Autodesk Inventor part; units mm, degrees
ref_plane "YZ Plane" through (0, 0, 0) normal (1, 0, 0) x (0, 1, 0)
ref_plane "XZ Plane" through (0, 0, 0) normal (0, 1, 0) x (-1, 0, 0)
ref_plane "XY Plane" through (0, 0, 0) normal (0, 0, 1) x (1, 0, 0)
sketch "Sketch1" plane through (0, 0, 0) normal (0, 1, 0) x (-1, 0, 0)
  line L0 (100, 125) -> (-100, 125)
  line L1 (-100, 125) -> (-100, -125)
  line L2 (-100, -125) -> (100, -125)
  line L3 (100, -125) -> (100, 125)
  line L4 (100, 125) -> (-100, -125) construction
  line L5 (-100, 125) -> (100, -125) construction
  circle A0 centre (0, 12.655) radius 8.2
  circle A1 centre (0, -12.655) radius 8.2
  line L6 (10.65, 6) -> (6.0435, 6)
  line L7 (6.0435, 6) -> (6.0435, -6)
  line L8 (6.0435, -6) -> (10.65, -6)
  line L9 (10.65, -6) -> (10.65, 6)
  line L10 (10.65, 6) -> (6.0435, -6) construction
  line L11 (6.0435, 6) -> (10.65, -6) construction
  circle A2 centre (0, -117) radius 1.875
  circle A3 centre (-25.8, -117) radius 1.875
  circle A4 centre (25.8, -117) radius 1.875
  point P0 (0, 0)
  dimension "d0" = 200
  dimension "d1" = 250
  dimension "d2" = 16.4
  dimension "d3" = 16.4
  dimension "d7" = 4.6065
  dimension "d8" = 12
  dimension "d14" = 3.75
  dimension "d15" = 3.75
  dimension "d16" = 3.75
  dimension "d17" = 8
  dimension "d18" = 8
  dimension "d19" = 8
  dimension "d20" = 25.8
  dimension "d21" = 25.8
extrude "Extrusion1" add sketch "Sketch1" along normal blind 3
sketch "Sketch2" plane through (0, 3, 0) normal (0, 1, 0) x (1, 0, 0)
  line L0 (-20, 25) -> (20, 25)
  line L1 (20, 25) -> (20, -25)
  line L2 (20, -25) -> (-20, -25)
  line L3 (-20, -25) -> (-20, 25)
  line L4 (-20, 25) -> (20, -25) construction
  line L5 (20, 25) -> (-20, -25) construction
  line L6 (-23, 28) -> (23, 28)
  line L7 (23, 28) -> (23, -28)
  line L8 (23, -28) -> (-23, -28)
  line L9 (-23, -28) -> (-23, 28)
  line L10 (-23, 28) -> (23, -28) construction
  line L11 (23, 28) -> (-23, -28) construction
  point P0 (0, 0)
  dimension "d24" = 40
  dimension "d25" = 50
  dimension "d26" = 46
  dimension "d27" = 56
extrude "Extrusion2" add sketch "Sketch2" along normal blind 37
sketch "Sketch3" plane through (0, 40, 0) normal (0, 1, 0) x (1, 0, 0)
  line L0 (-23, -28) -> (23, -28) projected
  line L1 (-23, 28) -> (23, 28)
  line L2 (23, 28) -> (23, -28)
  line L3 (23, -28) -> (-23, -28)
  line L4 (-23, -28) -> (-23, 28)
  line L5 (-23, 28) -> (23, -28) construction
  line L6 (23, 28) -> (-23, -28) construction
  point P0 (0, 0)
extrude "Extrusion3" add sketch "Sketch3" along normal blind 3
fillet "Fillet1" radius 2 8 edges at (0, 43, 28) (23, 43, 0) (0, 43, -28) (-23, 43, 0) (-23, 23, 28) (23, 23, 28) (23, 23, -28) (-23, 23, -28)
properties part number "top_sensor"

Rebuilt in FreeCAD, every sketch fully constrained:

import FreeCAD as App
import Part
import Sketcher
from FreeCAD import Vector


def edges_at(feature, points):
    """Names of the edges that pass closest to the given points."""
    edges = feature.Shape.Edges
    near = lambda p: min(range(len(edges)), key=lambda i: edges[i].distToShape(Part.Vertex(*p))[0])
    return sorted({f"Edge{near(p) + 1}" for p in points})


def add_polygon(sketch, points):
    """Adds a closed chain of lines whose ends are joined by coincident constraints."""
    first, n = sketch.GeometryCount, len(points)
    for a, b in zip(points, points[1:] + points[:1]):
        sketch.addGeometry(Part.LineSegment(App.Vector(*a, 0), App.Vector(*b, 0)), False)
    for i in range(n):
        sketch.addConstraint(Sketcher.Constraint("Coincident", first + i, 2, first + (i + 1) % n, 1))

doc = App.newDocument("Part")
params = doc.addObject("Spreadsheet::Sheet", "Params")
for row, (alias, value) in enumerate([
    ("sketch1_diameter", "16.4 mm"),
    ("sketch1_diameter2", "3.75 mm"),
    ("sketch1_width", "200 mm"),
    ("sketch1_height", "250 mm"),
    ("sketch1_height2", "12 mm"),
    ("pad1_length", "3 mm"),
    ("sketch2_width", "46 mm"),
    ("sketch2_width2", "40 mm"),
    ("sketch2_height", "56 mm"),
    ("sketch2_height2", "50 mm"),
    ("pad2_length", "37 mm"),
    ("sketch3_width", "46 mm"),
    ("sketch3_height", "56 mm"),
    ("pad3_length", "3 mm"),
    ("fillet_radius", "2 mm"),
], start=1):
    params.set(f"A{row}", alias)
    params.set(f"B{row}", "=" + value)
    params.setAlias(f"B{row}", alias)

body = doc.addObject("PartDesign::Body", "Body")

# Sketch on XZ plane
sketch1 = doc.addObject("Sketcher::SketchObject", "Sketch")
body.addObject(sketch1)
sketch1.AttachmentSupport = (doc.XZ_Plane, [""])
sketch1.MapMode = "FlatFace"
add_polygon(sketch1, [(-100, -125), (-100, 125), (100, 125), (100, -125)])  # lines 0-3
sketch1.addGeometry(Part.Circle(Vector(25.8, -117, 0), Vector(0, 0, 1), 1.875), False)  # 4
sketch1.addGeometry(Part.Circle(Vector(0, -117, 0), Vector(0, 0, 1), 1.875), False)  # 5
sketch1.addGeometry(Part.Circle(Vector(-25.8, -117, 0), Vector(0, 0, 1), 1.875), False)  # 6
sketch1.addGeometry(Part.Circle(Vector(0, -12.655, 0), Vector(0, 0, 1), 8.2), False)  # 7
add_polygon(sketch1, [(-6.0435, 6), (-10.65, 6), (-10.65, -6), (-6.0435, -6)])  # lines 8-11
sketch1.addGeometry(Part.Circle(Vector(0, 12.655, 0), Vector(0, 0, 1), 8.2), False)  # 12
sketch1.addConstraint([
    Sketcher.Constraint("Vertical", 0),
    Sketcher.Constraint("Horizontal", 1),
    Sketcher.Constraint("Vertical", 2),
    Sketcher.Constraint("Horizontal", 3),
    Sketcher.Constraint("Horizontal", 8),
    Sketcher.Constraint("Vertical", 9),
    Sketcher.Constraint("Horizontal", 10),
    Sketcher.Constraint("Vertical", 11),
    Sketcher.Constraint("Equal", 4, 5),
    Sketcher.Constraint("Equal", 5, 6),
    Sketcher.Constraint("Equal", 7, 12),
    Sketcher.Constraint("Symmetric", 7, 3, 12, 3, -1, 1),
    Sketcher.Constraint("Symmetric", 0, 2, 2, 2, -1, 1),
    Sketcher.Constraint("Symmetric", 4, 3, 6, 3, -2),
    Sketcher.Constraint("PointOnObject", 5, 3, -2),
    Sketcher.Constraint("PointOnObject", 7, 3, -2),
    Sketcher.Constraint("Horizontal", 4, 3, 5, 3),
    Sketcher.Constraint("Diameter", 7, 16.4),
    Sketcher.Constraint("Diameter", 4, 3.75),
    Sketcher.Constraint("DistanceX", 1, 1, 1, 2, 200.0),
    Sketcher.Constraint("DistanceY", 0, 1, 0, 2, 250.0),
    Sketcher.Constraint("DistanceY", 9, 2, 9, 1, 12.0),
    Sketcher.Constraint("DistanceY", 2, 2, 4, 3, 8.0),
    Sketcher.Constraint("DistanceX", -1, 1, 4, 3, 25.8),
    Sketcher.Constraint("DistanceX", 8, 2, 8, 1, 4.6065),
    Sketcher.Constraint("DistanceY", -1, 1, 8, 2, 6.0),
    Sketcher.Constraint("DistanceX", 8, 2, -1, 1, 10.65),
    Sketcher.Constraint("DistanceY", 7, 3, 12, 3, 25.31),
])
sketch1.setExpression("Constraints[25]", "Params.sketch1_diameter")
sketch1.setExpression("Constraints[26]", "Params.sketch1_diameter2")
sketch1.setExpression("Constraints[27]", "Params.sketch1_width")
sketch1.setExpression("Constraints[28]", "Params.sketch1_height")
sketch1.setExpression("Constraints[29]", "Params.sketch1_height2")
pad1 = doc.addObject("PartDesign::Pad", "Pad")
body.addObject(pad1)
pad1.Profile = sketch1
pad1.setExpression("Length", "Params.pad1_length")
pad1.Reversed = True

# Sketch on XZ plane
sketch2 = doc.addObject("Sketcher::SketchObject", "Sketch001")
body.addObject(sketch2)
sketch2.AttachmentSupport = (doc.XZ_Plane, [""])
sketch2.MapMode = "FlatFace"
sketch2.AttachmentOffset = App.Placement(Vector(0, 0, -3), App.Rotation())
add_polygon(sketch2, [(23, -28), (-23, -28), (-23, 28), (23, 28)])  # lines 0-3
add_polygon(sketch2, [(-20, 25), (-20, -25), (20, -25), (20, 25)])  # lines 4-7
sketch2.addConstraint([
    Sketcher.Constraint("Horizontal", 0),
    Sketcher.Constraint("Vertical", 1),
    Sketcher.Constraint("Horizontal", 2),
    Sketcher.Constraint("Vertical", 3),
    Sketcher.Constraint("Vertical", 4),
    Sketcher.Constraint("Horizontal", 5),
    Sketcher.Constraint("Vertical", 6),
    Sketcher.Constraint("Horizontal", 7),
    Sketcher.Constraint("Symmetric", 0, 2, 2, 2, -1, 1),
    Sketcher.Constraint("Symmetric", 4, 2, 6, 2, -1, 1),
    Sketcher.Constraint("DistanceX", 0, 2, 0, 1, 46.0),
    Sketcher.Constraint("DistanceX", 5, 1, 5, 2, 40.0),
    Sketcher.Constraint("DistanceY", 1, 1, 1, 2, 56.0),
    Sketcher.Constraint("DistanceY", 4, 2, 4, 1, 50.0),
])
sketch2.setExpression("Constraints[18]", "Params.sketch2_width")
sketch2.setExpression("Constraints[19]", "Params.sketch2_width2")
sketch2.setExpression("Constraints[20]", "Params.sketch2_height")
sketch2.setExpression("Constraints[21]", "Params.sketch2_height2")
pad2 = doc.addObject("PartDesign::Pad", "Pad001")
body.addObject(pad2)
pad2.Profile = sketch2
pad2.setExpression("Length", "Params.pad2_length")
pad2.Reversed = True

# Sketch on XZ plane
sketch3 = doc.addObject("Sketcher::SketchObject", "Sketch002")
body.addObject(sketch3)
sketch3.AttachmentSupport = (doc.XZ_Plane, [""])
sketch3.MapMode = "FlatFace"
sketch3.AttachmentOffset = App.Placement(Vector(0, 0, -40), App.Rotation())
add_polygon(sketch3, [(-23, -28), (-23, 28), (23, 28), (23, -28)])  # lines 0-3
sketch3.addConstraint([
    Sketcher.Constraint("Vertical", 0),
    Sketcher.Constraint("Horizontal", 1),
    Sketcher.Constraint("Vertical", 2),
    Sketcher.Constraint("Horizontal", 3),
    Sketcher.Constraint("Symmetric", 0, 2, 2, 2, -1, 1),
    Sketcher.Constraint("DistanceX", 1, 1, 1, 2, 46.0),
    Sketcher.Constraint("DistanceY", 0, 1, 0, 2, 56.0),
])
sketch3.setExpression("Constraints[9]", "Params.sketch3_width")
sketch3.setExpression("Constraints[10]", "Params.sketch3_height")
pad3 = doc.addObject("PartDesign::Pad", "Pad002")
body.addObject(pad3)
pad3.Profile = sketch3
pad3.setExpression("Length", "Params.pad3_length")
pad3.Reversed = True
doc.recompute()

fillet = doc.addObject("PartDesign::Fillet", "Fillet")
body.addObject(fillet)
fillet.Base = (pad3, edges_at(pad3, [
    (0, 43, 28),
    (23, 43, 0),
    (0, 43, -28),
    (-23, 43, 0),
    (-23, 23, 28),
    (23, 23, 28),
    (23, 23, -28),
    (-23, 23, -28),
]))
fillet.setExpression("Radius", "Params.fillet_radius")

doc.recompute()
